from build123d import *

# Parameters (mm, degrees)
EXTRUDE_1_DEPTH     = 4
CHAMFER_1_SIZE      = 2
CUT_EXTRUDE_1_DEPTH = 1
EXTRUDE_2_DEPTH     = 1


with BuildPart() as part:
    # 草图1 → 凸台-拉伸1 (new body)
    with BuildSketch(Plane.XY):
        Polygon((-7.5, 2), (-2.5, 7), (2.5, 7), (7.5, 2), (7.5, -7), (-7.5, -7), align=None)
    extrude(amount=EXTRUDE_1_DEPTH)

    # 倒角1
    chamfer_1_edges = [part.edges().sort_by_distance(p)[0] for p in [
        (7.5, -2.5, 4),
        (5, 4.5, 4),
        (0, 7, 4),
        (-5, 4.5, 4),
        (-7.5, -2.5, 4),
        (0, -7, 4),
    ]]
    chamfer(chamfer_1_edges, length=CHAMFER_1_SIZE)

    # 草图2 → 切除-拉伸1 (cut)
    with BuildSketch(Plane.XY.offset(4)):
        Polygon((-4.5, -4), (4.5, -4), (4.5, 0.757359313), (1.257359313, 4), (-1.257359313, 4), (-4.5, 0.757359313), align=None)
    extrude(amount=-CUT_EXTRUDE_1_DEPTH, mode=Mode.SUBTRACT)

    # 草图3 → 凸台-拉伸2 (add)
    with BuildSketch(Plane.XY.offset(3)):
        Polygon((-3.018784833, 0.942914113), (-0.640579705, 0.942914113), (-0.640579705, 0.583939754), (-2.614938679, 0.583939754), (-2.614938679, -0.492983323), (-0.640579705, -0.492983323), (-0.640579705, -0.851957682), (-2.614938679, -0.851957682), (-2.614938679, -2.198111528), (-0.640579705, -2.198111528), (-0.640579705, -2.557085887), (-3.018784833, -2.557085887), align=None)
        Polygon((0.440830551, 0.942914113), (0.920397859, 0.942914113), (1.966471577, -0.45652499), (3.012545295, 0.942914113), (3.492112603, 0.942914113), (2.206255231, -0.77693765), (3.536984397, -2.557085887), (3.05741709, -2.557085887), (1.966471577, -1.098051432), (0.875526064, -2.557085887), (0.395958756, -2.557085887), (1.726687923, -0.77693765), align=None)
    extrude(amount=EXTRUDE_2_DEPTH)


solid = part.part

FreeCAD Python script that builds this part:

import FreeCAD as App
import Part
import Sketcher
from FreeCAD import Vector
Q = App.Units.Quantity


def edges_at(feature, points):
    """Names of the edges that pass closest to the given points."""
    edges = feature.Shape.Edges
    near = lambda p: min(range(len(edges)), key=lambda i: edges[i].distToShape(Part.Vertex(*p))[0])
    return sorted({f"Edge{near(p) + 1}" for p in points})


def add_polygon(sketch, points):
    """Adds a closed chain of lines whose ends are joined by coincident constraints."""
    first, n = sketch.GeometryCount, len(points)
    for a, b in zip(points, points[1:] + points[:1]):
        sketch.addGeometry(Part.LineSegment(App.Vector(*a, 0), App.Vector(*b, 0)), False)
    for i in range(n):
        sketch.addConstraint(Sketcher.Constraint("Coincident", first + i, 2, first + (i + 1) % n, 1))

doc = App.newDocument("Part")
body = doc.addObject("PartDesign::Body", "Body")

# Sketch on XY plane
sketch1 = body.newObject("Sketcher::SketchObject", "Sketch")
sketch1.AttachmentSupport = (doc.getObject("XY_Plane"), [""])
sketch1.MapMode = "FlatFace"
add_polygon(sketch1, [(-2, 7), (-8, 2), (-8, -7), (8, -7), (8, 2), (2, 7)])  # lines 0-5
sketch1.addConstraint(Sketcher.Constraint("Vertical", 1))
sketch1.addConstraint(Sketcher.Constraint("Horizontal", 2))
sketch1.addConstraint(Sketcher.Constraint("Vertical", 3))
sketch1.addConstraint(Sketcher.Constraint("Horizontal", 5))
sketch1.addConstraint(Sketcher.Constraint("Symmetric", 0, 2, 3, 2, -2))
sketch1.addConstraint(Sketcher.Constraint("Perpendicular", 0, 4))
sketch1.addConstraint(Sketcher.Constraint("Equal", 0, 4))
sketch1.addConstraint(Sketcher.Constraint("DistanceX", 2, 1, 2, 2, Q("15 mm")))
sketch1.addConstraint(Sketcher.Constraint("DistanceX", 5, 2, 5, 1, Q("5 mm")))
sketch1.addConstraint(Sketcher.Constraint("DistanceY", 1, 2, 1, 1, Q("9 mm")))
sketch1.addConstraint(Sketcher.Constraint("DistanceY", -1, 1, 0, 2, Q("2 mm")))
pad1 = body.newObject("PartDesign::Pad", "Pad")
pad1.Profile = sketch1
pad1.Length = 4
doc.recompute()

chamfer = body.newObject("PartDesign::Chamfer", "Chamfer")
chamfer.Base = (pad1, edges_at(pad1, [
    (7.5, -2.5, 4),
    (5, 4.5, 4),
    (0, 7, 4),
    (-5, 4.5, 4),
    (-7.5, -2.5, 4),
    (0, -7, 4),
]))
chamfer.Size = 2

# Sketch on XY plane
sketch2 = body.newObject("Sketcher::SketchObject", "Sketch001")
sketch2.AttachmentSupport = (doc.getObject("XY_Plane"), [""])
sketch2.MapMode = "FlatFace"
sketch2.AttachmentOffset = App.Placement(Vector(0, 0, 4), App.Rotation())
add_polygon(sketch2, [(-4.5, -4), (4.5, -4), (4.5, 0.8), (1.3, 4), (-1.3, 4), (-4.5, 0.8)])  # lines 0-5
sketch2.addConstraint(Sketcher.Constraint("Horizontal", 0))
sketch2.addConstraint(Sketcher.Constraint("Vertical", 1))
sketch2.addConstraint(Sketcher.Constraint("Horizontal", 3))
sketch2.addConstraint(Sketcher.Constraint("Vertical", 5))
sketch2.addConstraint(Sketcher.Constraint("Symmetric", 1, 2, 4, 2, -2))
sketch2.addConstraint(Sketcher.Constraint("Perpendicular", 2, 4))
sketch2.addConstraint(Sketcher.Constraint("Equal", 2, 4))
sketch2.addConstraint(Sketcher.Constraint("DistanceX", 0, 1, 0, 2, Q("9 mm")))
sketch2.addConstraint(Sketcher.Constraint("DistanceY", 0, 2, -1, 1, Q("4 mm")))
sketch2.addConstraint(Sketcher.Constraint("DistanceY", -1, 1, 2, 2, Q("4 mm")))
sketch2.addConstraint(Sketcher.Constraint("DistanceX", 3, 2, 3, 1, Q("2.514719 mm")))
pocket1 = body.newObject("PartDesign::Pocket", "Pocket")
pocket1.Profile = sketch2
pocket1.Length = 1

# Sketch on XY plane
sketch3 = body.newObject("Sketcher::SketchObject", "Sketch002")
sketch3.AttachmentSupport = (doc.getObject("XY_Plane"), [""])
sketch3.MapMode = "FlatFace"
sketch3.AttachmentOffset = App.Placement(Vector(0, 0, 3), App.Rotation())
add_polygon(sketch3, [(-0.64, 0.94), (-3.02, 0.94), (-3.02, -2.56), (-0.64, -2.56), (-0.64, -2.2), (-2.61, -2.2), (-2.61, -0.85), (-0.64, -0.85), (-0.64, -0.49), (-2.61, -0.49), (-2.61, 0.58), (-0.64, 0.58)])  # lines 0-11
add_polygon(sketch3, [(0.92, 0.94), (0.44, 0.94), (1.73, -0.78), (0.4, -2.56), (0.88, -2.56), (1.97, -1.1), (3.06, -2.56), (3.54, -2.56), (2.21, -0.78), (3.49, 0.94), (3.01, 0.94), (1.97, -0.46)])  # lines 12-23
sketch3.addConstraint(Sketcher.Constraint("Horizontal", 0))
sketch3.addConstraint(Sketcher.Constraint("Vertical", 1))
sketch3.addConstraint(Sketcher.Constraint("Horizontal", 2))
sketch3.addConstraint(Sketcher.Constraint("Vertical", 3))
sketch3.addConstraint(Sketcher.Constraint("Horizontal", 4))
sketch3.addConstraint(Sketcher.Constraint("Vertical", 5))
sketch3.addConstraint(Sketcher.Constraint("Horizontal", 6))
sketch3.addConstraint(Sketcher.Constraint("Vertical", 7))
sketch3.addConstraint(Sketcher.Constraint("Horizontal", 8))
sketch3.addConstraint(Sketcher.Constraint("Vertical", 9))
sketch3.addConstraint(Sketcher.Constraint("Horizontal", 10))
sketch3.addConstraint(Sketcher.Constraint("Vertical", 11))
sketch3.addConstraint(Sketcher.Constraint("Horizontal", 12))
sketch3.addConstraint(Sketcher.Constraint("Horizontal", 15))
sketch3.addConstraint(Sketcher.Constraint("Horizontal", 18))
sketch3.addConstraint(Sketcher.Constraint("Horizontal", 21))
sketch3.addConstraint(Sketcher.Constraint("Horizontal", 11, 2, 12, 2))
sketch3.addConstraint(Sketcher.Constraint("Horizontal", 2, 2, 14, 2))
sketch3.addConstraint(Sketcher.Constraint("Horizontal", 15, 2, 17, 2))
sketch3.addConstraint(Sketcher.Constraint("Horizontal", 13, 2, 19, 2))
sketch3.addConstraint(Sketcher.Constraint("Horizontal", 12, 2, 20, 2))
sketch3.addConstraint(Sketcher.Constraint("Vertical", 3, 2, 6, 2))
sketch3.addConstraint(Sketcher.Constraint("Vertical", 5, 2, 8, 2))
sketch3.addConstraint(Sketcher.Constraint("Vertical", 7, 2, 10, 2))
sketch3.addConstraint(Sketcher.Constraint("Vertical", 16, 2, 22, 2))
sketch3.addConstraint(Sketcher.Constraint("Equal", 12, 15))
sketch3.addConstraint(Sketcher.Constraint("Equal", 15, 18))
sketch3.addConstraint(Sketcher.Constraint("Equal", 18, 21))
sketch3.addConstraint(Sketcher.Constraint("Equal", 3, 7))
sketch3.addConstraint(Sketcher.Constraint("Equal", 7, 11))
sketch3.addConstraint(Sketcher.Constraint("Equal", 16, 17))
sketch3.addConstraint(Sketcher.Constraint("Equal", 14, 19))
sketch3.addConstraint(Sketcher.Constraint("Equal", 13, 20))
sketch3.addConstraint(Sketcher.Constraint("DistanceY", 1, 2, 1, 1, Q("3.5 mm")))
sketch3.addConstraint(Sketcher.Constraint("Distance", 13, Q("2.147398 mm")))
sketch3.addConstraint(Sketcher.Constraint("DistanceX", 4, 2, 4, 1, Q("1.974359 mm")))
sketch3.addConstraint(Sketcher.Constraint("Distance", 14, Q("2.222559 mm")))
sketch3.addConstraint(Sketcher.Constraint("DistanceX", 0, 2, 0, 1, Q("2.378205 mm")))
sketch3.addConstraint(Sketcher.Constraint("DistanceX", 12, 2, 12, 1, Q("0.479567 mm")))
sketch3.addConstraint(Sketcher.Constraint("DistanceY", 3, 1, 3, 2, Q("0.358974 mm")))
sketch3.addConstraint(Sketcher.Constraint("DistanceY", 5, 1, 5, 2, Q("1.346154 mm")))
sketch3.addConstraint(Sketcher.Constraint("DistanceX", 2, 2, -1, 1, Q("0.64058 mm")))
sketch3.addConstraint(Sketcher.Constraint("DistanceY", 3, 2, -1, 1, Q("2.198112 mm")))
sketch3.addConstraint(Sketcher.Constraint("DistanceX", -1, 1, 12, 2, Q("0.440831 mm")))
sketch3.addConstraint(Sketcher.Constraint("DistanceX", -1, 1, 14, 2, Q("0.395959 mm")))
sketch3.addConstraint(Sketcher.Constraint("DistanceX", -1, 1, 16, 2, Q("1.966472 mm")))
sketch3.addConstraint(Sketcher.Constraint("DistanceY", 16, 2, -1, 1, Q("1.098051 mm")))
sketch3.addConstraint(Sketcher.Constraint("DistanceY", 22, 2, 21, 2, Q("1.399439 mm")))
pad2 = body.newObject("PartDesign::Pad", "Pad001")
pad2.Profile = sketch3
pad2.Length = 1

doc.recompute()
